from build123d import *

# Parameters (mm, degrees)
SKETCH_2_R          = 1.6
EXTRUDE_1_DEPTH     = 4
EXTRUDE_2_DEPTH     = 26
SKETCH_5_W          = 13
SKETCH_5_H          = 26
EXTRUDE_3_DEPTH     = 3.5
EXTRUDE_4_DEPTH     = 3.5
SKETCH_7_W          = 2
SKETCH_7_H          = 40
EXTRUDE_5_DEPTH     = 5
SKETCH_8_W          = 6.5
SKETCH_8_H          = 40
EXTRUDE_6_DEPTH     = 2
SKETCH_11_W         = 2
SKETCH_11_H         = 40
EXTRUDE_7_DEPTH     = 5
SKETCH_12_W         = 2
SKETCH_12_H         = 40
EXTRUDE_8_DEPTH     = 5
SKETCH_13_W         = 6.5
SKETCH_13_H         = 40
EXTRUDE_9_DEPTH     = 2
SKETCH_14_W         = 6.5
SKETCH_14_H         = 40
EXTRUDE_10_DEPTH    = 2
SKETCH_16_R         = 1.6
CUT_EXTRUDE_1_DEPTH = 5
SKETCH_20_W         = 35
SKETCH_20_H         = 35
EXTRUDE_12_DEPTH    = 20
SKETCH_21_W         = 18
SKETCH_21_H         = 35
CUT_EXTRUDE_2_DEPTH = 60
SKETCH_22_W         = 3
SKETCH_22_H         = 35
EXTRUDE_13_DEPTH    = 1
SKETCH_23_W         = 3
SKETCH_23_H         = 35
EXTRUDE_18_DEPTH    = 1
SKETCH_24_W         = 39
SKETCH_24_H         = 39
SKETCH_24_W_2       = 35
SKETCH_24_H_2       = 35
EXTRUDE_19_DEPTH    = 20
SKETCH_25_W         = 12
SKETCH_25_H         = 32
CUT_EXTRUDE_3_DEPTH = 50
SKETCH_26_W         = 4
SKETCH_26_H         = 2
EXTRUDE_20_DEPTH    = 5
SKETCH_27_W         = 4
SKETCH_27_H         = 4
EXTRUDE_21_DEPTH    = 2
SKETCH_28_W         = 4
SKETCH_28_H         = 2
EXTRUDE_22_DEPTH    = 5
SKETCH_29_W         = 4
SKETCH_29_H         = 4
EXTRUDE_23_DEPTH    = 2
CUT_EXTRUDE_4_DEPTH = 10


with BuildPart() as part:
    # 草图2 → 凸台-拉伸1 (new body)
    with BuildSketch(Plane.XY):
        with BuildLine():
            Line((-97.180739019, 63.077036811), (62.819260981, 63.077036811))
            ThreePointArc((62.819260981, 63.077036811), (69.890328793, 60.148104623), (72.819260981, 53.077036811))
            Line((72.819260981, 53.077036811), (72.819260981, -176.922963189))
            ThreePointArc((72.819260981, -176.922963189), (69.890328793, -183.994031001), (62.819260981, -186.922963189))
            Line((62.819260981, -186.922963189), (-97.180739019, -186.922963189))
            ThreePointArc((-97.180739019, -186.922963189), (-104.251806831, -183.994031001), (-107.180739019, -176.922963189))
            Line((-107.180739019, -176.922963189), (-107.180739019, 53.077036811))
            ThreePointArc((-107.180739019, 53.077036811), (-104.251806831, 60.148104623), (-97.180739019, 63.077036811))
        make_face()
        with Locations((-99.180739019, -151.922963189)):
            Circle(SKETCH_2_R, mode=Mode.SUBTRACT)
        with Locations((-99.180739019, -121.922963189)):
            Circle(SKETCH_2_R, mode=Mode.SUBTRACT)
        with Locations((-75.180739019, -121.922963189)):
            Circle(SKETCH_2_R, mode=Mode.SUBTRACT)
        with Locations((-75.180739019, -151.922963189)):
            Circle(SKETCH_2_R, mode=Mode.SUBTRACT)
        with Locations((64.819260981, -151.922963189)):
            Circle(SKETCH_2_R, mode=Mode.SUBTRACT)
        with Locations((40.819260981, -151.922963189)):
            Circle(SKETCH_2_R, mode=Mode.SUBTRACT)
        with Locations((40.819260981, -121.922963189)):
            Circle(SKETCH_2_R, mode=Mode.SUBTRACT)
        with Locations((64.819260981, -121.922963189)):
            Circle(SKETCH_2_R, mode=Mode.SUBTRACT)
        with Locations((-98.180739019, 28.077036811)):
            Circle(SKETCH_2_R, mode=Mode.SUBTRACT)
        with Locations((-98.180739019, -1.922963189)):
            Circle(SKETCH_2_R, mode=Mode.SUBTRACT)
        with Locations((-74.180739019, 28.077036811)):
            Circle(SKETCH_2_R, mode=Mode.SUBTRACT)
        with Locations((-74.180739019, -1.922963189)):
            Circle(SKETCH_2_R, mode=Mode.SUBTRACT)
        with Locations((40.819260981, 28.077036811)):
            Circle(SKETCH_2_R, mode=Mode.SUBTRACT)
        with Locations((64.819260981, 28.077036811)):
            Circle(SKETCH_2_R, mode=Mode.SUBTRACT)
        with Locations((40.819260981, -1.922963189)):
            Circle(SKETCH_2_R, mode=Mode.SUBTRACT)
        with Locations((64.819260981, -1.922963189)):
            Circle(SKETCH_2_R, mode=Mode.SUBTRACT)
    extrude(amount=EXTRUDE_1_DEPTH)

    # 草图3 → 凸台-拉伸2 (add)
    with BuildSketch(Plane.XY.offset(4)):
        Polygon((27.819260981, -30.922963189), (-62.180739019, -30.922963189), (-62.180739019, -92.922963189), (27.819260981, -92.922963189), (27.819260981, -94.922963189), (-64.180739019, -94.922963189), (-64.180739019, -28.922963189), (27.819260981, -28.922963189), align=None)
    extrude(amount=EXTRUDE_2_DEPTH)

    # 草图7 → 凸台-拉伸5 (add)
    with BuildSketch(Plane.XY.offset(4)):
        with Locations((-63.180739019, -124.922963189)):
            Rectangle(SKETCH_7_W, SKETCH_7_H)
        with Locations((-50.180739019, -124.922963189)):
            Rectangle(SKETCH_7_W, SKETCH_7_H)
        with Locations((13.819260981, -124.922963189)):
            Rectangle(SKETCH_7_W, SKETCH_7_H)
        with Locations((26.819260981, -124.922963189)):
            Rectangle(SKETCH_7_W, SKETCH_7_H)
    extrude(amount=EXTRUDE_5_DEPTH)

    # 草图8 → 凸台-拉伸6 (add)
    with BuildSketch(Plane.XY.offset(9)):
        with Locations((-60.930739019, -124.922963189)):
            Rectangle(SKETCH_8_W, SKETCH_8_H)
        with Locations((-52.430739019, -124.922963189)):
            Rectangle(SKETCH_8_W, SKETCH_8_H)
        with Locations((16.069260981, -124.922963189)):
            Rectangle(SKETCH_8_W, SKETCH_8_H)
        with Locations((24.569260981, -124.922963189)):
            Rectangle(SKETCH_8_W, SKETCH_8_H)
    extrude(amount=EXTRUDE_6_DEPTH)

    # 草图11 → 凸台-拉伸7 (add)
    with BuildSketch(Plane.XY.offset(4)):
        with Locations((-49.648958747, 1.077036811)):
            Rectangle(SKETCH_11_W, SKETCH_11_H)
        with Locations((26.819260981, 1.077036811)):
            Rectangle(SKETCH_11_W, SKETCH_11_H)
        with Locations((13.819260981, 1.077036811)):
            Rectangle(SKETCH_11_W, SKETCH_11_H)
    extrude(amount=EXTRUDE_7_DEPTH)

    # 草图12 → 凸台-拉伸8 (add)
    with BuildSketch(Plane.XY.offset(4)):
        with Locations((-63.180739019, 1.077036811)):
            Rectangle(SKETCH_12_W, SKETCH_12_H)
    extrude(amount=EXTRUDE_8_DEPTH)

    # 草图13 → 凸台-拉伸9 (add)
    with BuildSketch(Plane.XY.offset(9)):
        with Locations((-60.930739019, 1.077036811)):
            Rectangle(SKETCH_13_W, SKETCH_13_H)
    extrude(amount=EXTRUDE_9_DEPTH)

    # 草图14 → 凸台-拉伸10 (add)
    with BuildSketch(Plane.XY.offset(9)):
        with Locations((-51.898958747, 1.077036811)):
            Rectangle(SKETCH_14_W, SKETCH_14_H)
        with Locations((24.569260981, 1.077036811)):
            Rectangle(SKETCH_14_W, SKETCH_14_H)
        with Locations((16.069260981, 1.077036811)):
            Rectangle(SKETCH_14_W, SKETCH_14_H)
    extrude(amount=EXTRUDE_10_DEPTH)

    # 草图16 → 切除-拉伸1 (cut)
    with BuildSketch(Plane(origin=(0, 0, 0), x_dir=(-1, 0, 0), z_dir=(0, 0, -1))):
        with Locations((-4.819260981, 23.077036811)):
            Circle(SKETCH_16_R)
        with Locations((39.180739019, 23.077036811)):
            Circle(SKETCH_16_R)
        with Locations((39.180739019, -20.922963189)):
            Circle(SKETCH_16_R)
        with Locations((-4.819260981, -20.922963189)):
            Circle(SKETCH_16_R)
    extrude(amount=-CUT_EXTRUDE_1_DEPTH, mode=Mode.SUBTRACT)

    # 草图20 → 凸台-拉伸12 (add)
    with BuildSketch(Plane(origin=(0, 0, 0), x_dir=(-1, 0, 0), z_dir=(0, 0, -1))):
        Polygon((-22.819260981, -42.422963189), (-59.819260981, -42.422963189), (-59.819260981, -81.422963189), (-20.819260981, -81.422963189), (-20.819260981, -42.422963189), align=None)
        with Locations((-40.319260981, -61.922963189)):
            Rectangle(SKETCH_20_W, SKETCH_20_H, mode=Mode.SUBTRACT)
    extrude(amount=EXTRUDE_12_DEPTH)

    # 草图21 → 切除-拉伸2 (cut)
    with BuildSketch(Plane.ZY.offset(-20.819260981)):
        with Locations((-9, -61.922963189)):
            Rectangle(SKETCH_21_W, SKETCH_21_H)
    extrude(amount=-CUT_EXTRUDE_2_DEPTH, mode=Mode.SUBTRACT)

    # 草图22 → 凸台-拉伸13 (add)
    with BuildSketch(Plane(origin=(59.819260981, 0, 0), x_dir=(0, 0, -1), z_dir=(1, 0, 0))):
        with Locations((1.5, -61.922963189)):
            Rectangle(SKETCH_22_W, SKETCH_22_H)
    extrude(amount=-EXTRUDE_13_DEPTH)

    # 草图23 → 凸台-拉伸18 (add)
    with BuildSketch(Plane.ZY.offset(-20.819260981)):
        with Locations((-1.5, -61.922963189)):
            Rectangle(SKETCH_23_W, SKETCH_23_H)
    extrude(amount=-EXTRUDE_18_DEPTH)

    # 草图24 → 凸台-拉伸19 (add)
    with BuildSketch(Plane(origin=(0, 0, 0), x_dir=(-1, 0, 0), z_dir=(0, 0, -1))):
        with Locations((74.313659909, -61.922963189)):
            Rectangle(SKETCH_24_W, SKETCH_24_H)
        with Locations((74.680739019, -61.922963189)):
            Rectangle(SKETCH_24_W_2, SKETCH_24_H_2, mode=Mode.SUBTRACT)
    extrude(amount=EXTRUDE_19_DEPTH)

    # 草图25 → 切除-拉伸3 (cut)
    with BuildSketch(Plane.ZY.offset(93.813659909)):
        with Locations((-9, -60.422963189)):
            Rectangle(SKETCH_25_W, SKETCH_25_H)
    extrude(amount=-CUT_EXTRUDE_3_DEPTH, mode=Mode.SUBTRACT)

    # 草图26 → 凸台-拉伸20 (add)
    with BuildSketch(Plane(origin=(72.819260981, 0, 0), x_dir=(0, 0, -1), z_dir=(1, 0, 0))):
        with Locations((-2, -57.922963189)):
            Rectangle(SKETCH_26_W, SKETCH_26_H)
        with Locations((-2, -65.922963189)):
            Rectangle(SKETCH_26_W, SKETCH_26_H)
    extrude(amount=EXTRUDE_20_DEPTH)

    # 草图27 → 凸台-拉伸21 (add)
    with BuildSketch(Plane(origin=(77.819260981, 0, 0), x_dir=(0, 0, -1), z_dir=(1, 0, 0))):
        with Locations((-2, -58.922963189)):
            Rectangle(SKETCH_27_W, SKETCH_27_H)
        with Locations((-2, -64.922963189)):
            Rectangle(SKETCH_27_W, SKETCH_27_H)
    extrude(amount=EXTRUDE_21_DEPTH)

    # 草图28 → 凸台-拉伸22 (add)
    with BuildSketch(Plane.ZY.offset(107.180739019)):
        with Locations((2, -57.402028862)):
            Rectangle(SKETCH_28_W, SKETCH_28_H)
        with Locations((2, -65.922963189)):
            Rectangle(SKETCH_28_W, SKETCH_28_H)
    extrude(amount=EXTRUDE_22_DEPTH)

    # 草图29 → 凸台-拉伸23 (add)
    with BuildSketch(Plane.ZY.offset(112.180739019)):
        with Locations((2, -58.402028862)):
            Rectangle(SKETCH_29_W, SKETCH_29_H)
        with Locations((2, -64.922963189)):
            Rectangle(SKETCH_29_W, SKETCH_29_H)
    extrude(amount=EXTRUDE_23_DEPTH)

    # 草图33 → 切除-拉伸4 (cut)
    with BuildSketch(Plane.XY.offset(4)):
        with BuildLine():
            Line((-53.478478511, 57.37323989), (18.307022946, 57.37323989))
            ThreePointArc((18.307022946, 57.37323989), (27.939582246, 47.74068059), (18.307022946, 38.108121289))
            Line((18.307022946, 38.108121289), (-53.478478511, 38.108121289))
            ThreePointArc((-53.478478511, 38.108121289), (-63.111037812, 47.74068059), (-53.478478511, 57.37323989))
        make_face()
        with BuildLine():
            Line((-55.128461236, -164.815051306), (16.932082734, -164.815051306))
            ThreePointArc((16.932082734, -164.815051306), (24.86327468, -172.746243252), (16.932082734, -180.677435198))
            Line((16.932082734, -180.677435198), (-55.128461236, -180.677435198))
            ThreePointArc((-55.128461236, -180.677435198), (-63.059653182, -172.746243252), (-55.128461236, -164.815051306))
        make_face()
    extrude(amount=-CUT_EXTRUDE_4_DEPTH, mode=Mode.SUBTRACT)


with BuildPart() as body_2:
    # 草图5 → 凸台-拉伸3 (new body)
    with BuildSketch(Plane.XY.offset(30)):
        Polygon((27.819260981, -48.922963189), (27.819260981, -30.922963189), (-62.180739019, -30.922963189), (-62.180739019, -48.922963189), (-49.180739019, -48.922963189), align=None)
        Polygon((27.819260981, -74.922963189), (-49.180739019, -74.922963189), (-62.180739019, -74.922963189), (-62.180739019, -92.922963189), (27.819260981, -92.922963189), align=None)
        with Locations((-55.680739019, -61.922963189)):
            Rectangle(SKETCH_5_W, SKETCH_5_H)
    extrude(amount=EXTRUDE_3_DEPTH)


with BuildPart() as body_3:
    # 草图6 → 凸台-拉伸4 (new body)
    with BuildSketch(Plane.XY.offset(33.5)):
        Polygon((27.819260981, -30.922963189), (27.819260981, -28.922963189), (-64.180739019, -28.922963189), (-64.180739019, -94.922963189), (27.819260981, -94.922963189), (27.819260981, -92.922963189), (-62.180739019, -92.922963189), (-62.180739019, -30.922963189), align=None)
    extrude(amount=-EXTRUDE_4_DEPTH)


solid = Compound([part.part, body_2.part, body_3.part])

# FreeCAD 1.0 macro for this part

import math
import FreeCAD as App
import Part
import Sketcher


def add_polygon(sketch, points):
    """Adds a closed chain of lines whose ends are joined by coincident constraints."""
    first, n = sketch.GeometryCount, len(points)
    for a, b in zip(points, points[1:] + points[:1]):
        sketch.addGeometry(Part.LineSegment(App.Vector(*a, 0), App.Vector(*b, 0)), False)
    for i in range(n):
        sketch.addConstraint(Sketcher.Constraint("Coincident", first + i, 2, first + (i + 1) % n, 1))

doc = App.newDocument("Part")
body = doc.addObject("PartDesign::Body", "Body")

sketch1 = body.newObject("Sketcher::SketchObject", "Sketch")
sketch1.AttachmentSupport = (doc.getObject("XY_Plane"), [""])
sketch1.MapMode = "FlatFace"
sketch1.addGeometry(Part.LineSegment(App.Vector(62.819261, 63.077037, 0), App.Vector(-97.180739, 63.077037, 0)), False)
sketch1.addGeometry(Part.ArcOfCircle(Part.Circle(App.Vector(-97.180739, 53.077037, 0), App.Vector(0, 0, 1), 10), math.radians(90), math.radians(180)), False)
sketch1.addGeometry(Part.LineSegment(App.Vector(-107.180739, 53.077037, 0), App.Vector(-107.180739, -176.922963, 0)), False)
sketch1.addGeometry(Part.ArcOfCircle(Part.Circle(App.Vector(-97.180739, -176.922963, 0), App.Vector(0, 0, 1), 10), math.radians(180), math.radians(270)), False)
sketch1.addGeometry(Part.LineSegment(App.Vector(-97.180739, -186.922963, 0), App.Vector(62.819261, -186.922963, 0)), False)
sketch1.addGeometry(Part.ArcOfCircle(Part.Circle(App.Vector(62.819261, -176.922963, 0), App.Vector(0, 0, 1), 10), math.radians(-90), math.radians(0)), False)
sketch1.addGeometry(Part.LineSegment(App.Vector(72.819261, -176.922963, 0), App.Vector(72.819261, 53.077037, 0)), False)
sketch1.addGeometry(Part.ArcOfCircle(Part.Circle(App.Vector(62.819261, 53.077037, 0), App.Vector(0, 0, 1), 10), math.radians(0), math.radians(90)), False)
sketch1.addGeometry(Part.Circle(App.Vector(64.819261, -151.922963, 0), App.Vector(0, 0, 1), 1.6), False)
sketch1.addGeometry(Part.Circle(App.Vector(40.819261, -151.922963, 0), App.Vector(0, 0, 1), 1.6), False)
sketch1.addGeometry(Part.Circle(App.Vector(64.819261, -121.922963, 0), App.Vector(0, 0, 1), 1.6), False)
sketch1.addGeometry(Part.Circle(App.Vector(40.819261, -121.922963, 0), App.Vector(0, 0, 1), 1.6), False)
sketch1.addGeometry(Part.Circle(App.Vector(-75.180739, -151.922963, 0), App.Vector(0, 0, 1), 1.6), False)
sketch1.addGeometry(Part.Circle(App.Vector(-99.180739, -151.922963, 0), App.Vector(0, 0, 1), 1.6), False)
sketch1.addGeometry(Part.Circle(App.Vector(-75.180739, -121.922963, 0), App.Vector(0, 0, 1), 1.6), False)
sketch1.addGeometry(Part.Circle(App.Vector(-99.180739, -121.922963, 0), App.Vector(0, 0, 1), 1.6), False)
sketch1.addGeometry(Part.Circle(App.Vector(64.819261, -1.922963, 0), App.Vector(0, 0, 1), 1.6), False)
sketch1.addGeometry(Part.Circle(App.Vector(40.819261, -1.922963, 0), App.Vector(0, 0, 1), 1.6), False)
sketch1.addGeometry(Part.Circle(App.Vector(64.819261, 28.077037, 0), App.Vector(0, 0, 1), 1.6), False)
sketch1.addGeometry(Part.Circle(App.Vector(40.819261, 28.077037, 0), App.Vector(0, 0, 1), 1.6), False)
sketch1.addGeometry(Part.Circle(App.Vector(-74.180739, -1.922963, 0), App.Vector(0, 0, 1), 1.6), False)
sketch1.addGeometry(Part.Circle(App.Vector(-98.180739, -1.922963, 0), App.Vector(0, 0, 1), 1.6), False)
sketch1.addGeometry(Part.Circle(App.Vector(-74.180739, 28.077037, 0), App.Vector(0, 0, 1), 1.6), False)
sketch1.addGeometry(Part.Circle(App.Vector(-98.180739, 28.077037, 0), App.Vector(0, 0, 1), 1.6), False)
sketch1.addConstraint(Sketcher.Constraint("Tangent", 0, 2, 1, 1))
sketch1.addConstraint(Sketcher.Constraint("Tangent", 1, 2, 2, 1))
sketch1.addConstraint(Sketcher.Constraint("Tangent", 2, 2, 3, 1))
sketch1.addConstraint(Sketcher.Constraint("Tangent", 3, 2, 4, 1))
sketch1.addConstraint(Sketcher.Constraint("Tangent", 4, 2, 5, 1))
sketch1.addConstraint(Sketcher.Constraint("Tangent", 5, 2, 6, 1))
sketch1.addConstraint(Sketcher.Constraint("Tangent", 6, 2, 7, 1))
sketch1.addConstraint(Sketcher.Constraint("Tangent", 7, 2, 0, 1))
sketch1.addConstraint(Sketcher.Constraint("Horizontal", 0))
sketch1.addConstraint(Sketcher.Constraint("Vertical", 2))
sketch1.addConstraint(Sketcher.Constraint("Horizontal", 4))
sketch1.addConstraint(Sketcher.Constraint("Vertical", 6))
sketch1.addConstraint(Sketcher.Constraint("Equal", 1, 3))
sketch1.addConstraint(Sketcher.Constraint("Equal", 3, 5))
sketch1.addConstraint(Sketcher.Constraint("Equal", 5, 7))
sketch1.addConstraint(Sketcher.Constraint("Equal", 8, 9))
sketch1.addConstraint(Sketcher.Constraint("Equal", 9, 10))
sketch1.addConstraint(Sketcher.Constraint("Equal", 10, 11))
sketch1.addConstraint(Sketcher.Constraint("Equal", 11, 12))
sketch1.addConstraint(Sketcher.Constraint("Equal", 12, 13))
sketch1.addConstraint(Sketcher.Constraint("Equal", 13, 14))
sketch1.addConstraint(Sketcher.Constraint("Equal", 14, 15))
sketch1.addConstraint(Sketcher.Constraint("Equal", 15, 16))
sketch1.addConstraint(Sketcher.Constraint("Equal", 16, 17))
sketch1.addConstraint(Sketcher.Constraint("Equal", 17, 18))
sketch1.addConstraint(Sketcher.Constraint("Equal", 18, 19))
sketch1.addConstraint(Sketcher.Constraint("Equal", 19, 20))
sketch1.addConstraint(Sketcher.Constraint("Equal", 20, 21))
sketch1.addConstraint(Sketcher.Constraint("Equal", 21, 22))
sketch1.addConstraint(Sketcher.Constraint("Equal", 22, 23))
sketch1.addConstraint(Sketcher.Constraint("Horizontal", 8, 3, 9, 3))
sketch1.addConstraint(Sketcher.Constraint("Horizontal", 10, 3, 11, 3))
sketch1.addConstraint(Sketcher.Constraint("Horizontal", 9, 3, 12, 3))
sketch1.addConstraint(Sketcher.Constraint("Horizontal", 12, 3, 13, 3))
sketch1.addConstraint(Sketcher.Constraint("Horizontal", 11, 3, 14, 3))
sketch1.addConstraint(Sketcher.Constraint("Horizontal", 14, 3, 15, 3))
sketch1.addConstraint(Sketcher.Constraint("Horizontal", 16, 3, 17, 3))
sketch1.addConstraint(Sketcher.Constraint("Horizontal", 18, 3, 19, 3))
sketch1.addConstraint(Sketcher.Constraint("Horizontal", 17, 3, 20, 3))
sketch1.addConstraint(Sketcher.Constraint("Horizontal", 20, 3, 21, 3))
sketch1.addConstraint(Sketcher.Constraint("Horizontal", 19, 3, 22, 3))
sketch1.addConstraint(Sketcher.Constraint("Horizontal", 22, 3, 23, 3))
sketch1.addConstraint(Sketcher.Constraint("Vertical", 8, 3, 10, 3))
sketch1.addConstraint(Sketcher.Constraint("Vertical", 9, 3, 11, 3))
sketch1.addConstraint(Sketcher.Constraint("Vertical", 12, 3, 14, 3))
sketch1.addConstraint(Sketcher.Constraint("Vertical", 13, 3, 15, 3))
sketch1.addConstraint(Sketcher.Constraint("Vertical", 10, 3, 16, 3))
sketch1.addConstraint(Sketcher.Constraint("Vertical", 11, 3, 17, 3))
sketch1.addConstraint(Sketcher.Constraint("Vertical", 16, 3, 18, 3))
sketch1.addConstraint(Sketcher.Constraint("Vertical", 17, 3, 19, 3))
sketch1.addConstraint(Sketcher.Constraint("Vertical", 20, 3, 22, 3))
sketch1.addConstraint(Sketcher.Constraint("Vertical", 21, 3, 23, 3))
sketch1.addConstraint(Sketcher.Constraint("Radius", 1, 10.0))
sketch1.addConstraint(Sketcher.Constraint("Diameter", 8, 3.2))
sketch1.addConstraint(Sketcher.Constraint("DistanceX", 0, 2, 0, 1, 160.0))
sketch1.addConstraint(Sketcher.Constraint("DistanceY", 2, 2, 2, 1, 230.0))
sketch1.addConstraint(Sketcher.Constraint("DistanceX", 5, 3, 8, 3, 2.0))
sketch1.addConstraint(Sketcher.Constraint("DistanceY", 5, 3, 8, 3, 25.0))
sketch1.addConstraint(Sketcher.Constraint("DistanceX", 9, 3, 8, 3, 24.0))
sketch1.addConstraint(Sketcher.Constraint("DistanceY", 8, 3, 10, 3, 30.0))
sketch1.addConstraint(Sketcher.Constraint("DistanceX", 3, 3, 12, 3, 22.0))
sketch1.addConstraint(Sketcher.Constraint("DistanceX", 13, 3, 12, 3, 24.0))
sketch1.addConstraint(Sketcher.Constraint("DistanceY", 16, 3, 7, 3, 55.0))
sketch1.addConstraint(Sketcher.Constraint("DistanceY", 18, 3, 7, 3, 25.0))
sketch1.addConstraint(Sketcher.Constraint("DistanceX", 1, 3, 20, 3, 23.0))
sketch1.addConstraint(Sketcher.Constraint("DistanceX", 21, 3, 20, 3, 24.0))
sketch1.addConstraint(Sketcher.Constraint("DistanceX", 1, 3, -1, 1, 97.180739))
sketch1.addConstraint(Sketcher.Constraint("DistanceY", -1, 1, 1, 3, 53.077037))
pad1 = body.newObject("PartDesign::Pad", "Pad")
pad1.Profile = sketch1
pad1.Length = 4

sketch2 = body.newObject("Sketcher::SketchObject", "Sketch001")
sketch2.AttachmentSupport = (doc.getObject("XY_Plane"), [""])
sketch2.MapMode = "FlatFace"
sketch2.AttachmentOffset = App.Placement(App.Vector(0, 0, 4), App.Rotation())
add_polygon(sketch2, [(-62.180739, -30.922963), (27.819261, -30.922963), (27.819261, -28.922963), (-64.180739, -28.922963), (-64.180739, -94.922963), (27.819261, -94.922963), (27.819261, -92.922963), (-62.180739, -92.922963)])
sketch2.addConstraint(Sketcher.Constraint("Horizontal", 0))
sketch2.addConstraint(Sketcher.Constraint("Vertical", 1))
sketch2.addConstraint(Sketcher.Constraint("Horizontal", 2))
sketch2.addConstraint(Sketcher.Constraint("Vertical", 3))
sketch2.addConstraint(Sketcher.Constraint("Horizontal", 4))
sketch2.addConstraint(Sketcher.Constraint("Vertical", 5))
sketch2.addConstraint(Sketcher.Constraint("Horizontal", 6))
sketch2.addConstraint(Sketcher.Constraint("Vertical", 7))
sketch2.addConstraint(Sketcher.Constraint("Vertical", 1, 2, 4, 2))
sketch2.addConstraint(Sketcher.Constraint("Equal", 1, 5))
sketch2.addConstraint(Sketcher.Constraint("DistanceX", 0, 1, 0, 2, 90.0))
sketch2.addConstraint(Sketcher.Constraint("DistanceX", 2, 2, 2, 1, 92.0))
sketch2.addConstraint(Sketcher.Constraint("DistanceY", 1, 1, 1, 2, 2.0))
sketch2.addConstraint(Sketcher.Constraint("DistanceY", 3, 2, 3, 1, 66.0))
sketch2.addConstraint(Sketcher.Constraint("DistanceX", -1, 1, 0, 2, 27.819261))
sketch2.addConstraint(Sketcher.Constraint("DistanceY", 0, 2, -1, 1, 30.922963))
pad2 = body.newObject("PartDesign::Pad", "Pad001")
pad2.Profile = sketch2
pad2.Length = 26

sketch3 = body.newObject("Sketcher::SketchObject", "Sketch002")
sketch3.AttachmentSupport = (doc.getObject("XY_Plane"), [""])
sketch3.MapMode = "FlatFace"
sketch3.AttachmentOffset = App.Placement(App.Vector(0, 0, 4), App.Rotation())
add_polygon(sketch3, [(-64.180739, -104.922963), (-64.180739, -144.922963), (-62.180739, -144.922963), (-62.180739, -104.922963)])
add_polygon(sketch3, [(-51.180739, -104.922963), (-51.180739, -144.922963), (-49.180739, -144.922963), (-49.180739, -104.922963)])
add_polygon(sketch3, [(12.819261, -104.922963), (12.819261, -144.922963), (14.819261, -144.922963), (14.819261, -104.922963)])
add_polygon(sketch3, [(25.819261, -104.922963), (25.819261, -144.922963), (27.819261, -144.922963), (27.819261, -104.922963)])
sketch3.addConstraint(Sketcher.Constraint("Vertical", 0))
sketch3.addConstraint(Sketcher.Constraint("Horizontal", 1))
sketch3.addConstraint(Sketcher.Constraint("Vertical", 2))
sketch3.addConstraint(Sketcher.Constraint("Horizontal", 3))
sketch3.addConstraint(Sketcher.Constraint("Vertical", 4))
sketch3.addConstraint(Sketcher.Constraint("Horizontal", 5))
sketch3.addConstraint(Sketcher.Constraint("Vertical", 6))
sketch3.addConstraint(Sketcher.Constraint("Horizontal", 7))
sketch3.addConstraint(Sketcher.Constraint("Vertical", 8))
sketch3.addConstraint(Sketcher.Constraint("Horizontal", 9))
sketch3.addConstraint(Sketcher.Constraint("Vertical", 10))
sketch3.addConstraint(Sketcher.Constraint("Horizontal", 11))
sketch3.addConstraint(Sketcher.Constraint("Vertical", 12))
sketch3.addConstraint(Sketcher.Constraint("Horizontal", 13))
sketch3.addConstraint(Sketcher.Constraint("Vertical", 14))
sketch3.addConstraint(Sketcher.Constraint("Horizontal", 15))
sketch3.addConstraint(Sketcher.Constraint("Horizontal", 1, 2, 4, 2))
sketch3.addConstraint(Sketcher.Constraint("Horizontal", 3, 2, 6, 2))
sketch3.addConstraint(Sketcher.Constraint("Horizontal", 5, 2, 8, 2))
sketch3.addConstraint(Sketcher.Constraint("Horizontal", 7, 2, 10, 2))
sketch3.addConstraint(Sketcher.Constraint("Horizontal", 9, 2, 12, 2))
sketch3.addConstraint(Sketcher.Constraint("Horizontal", 11, 2, 14, 2))
sketch3.addConstraint(Sketcher.Constraint("Equal", 3, 5))
sketch3.addConstraint(Sketcher.Constraint("Equal", 7, 9))
sketch3.addConstraint(Sketcher.Constraint("Equal", 11, 13))
sketch3.addConstraint(Sketcher.Constraint("DistanceX", 1, 1, 1, 2, 2.0))
sketch3.addConstraint(Sketcher.Constraint("DistanceY", 0, 2, 0, 1, 40.0))
sketch3.addConstraint(Sketcher.Constraint("DistanceX", 1, 2, 4, 2, 11.0))
sketch3.addConstraint(Sketcher.Constraint("DistanceX", 5, 2, 8, 2, 62.0))
sketch3.addConstraint(Sketcher.Constraint("DistanceX", 9, 2, 12, 2, 11.0))
sketch3.addConstraint(Sketcher.Constraint("DistanceX", 0, 2, -1, 1, 64.180739))
sketch3.addConstraint(Sketcher.Constraint("DistanceY", 0, 2, -1, 1, 144.922963))
pad3 = body.newObject("PartDesign::Pad", "Pad002")
pad3.Profile = sketch3
pad3.Length = 5

sketch4 = body.newObject("Sketcher::SketchObject", "Sketch003")
sketch4.AttachmentSupport = (doc.getObject("XY_Plane"), [""])
sketch4.MapMode = "FlatFace"
sketch4.AttachmentOffset = App.Placement(App.Vector(0, 0, 9), App.Rotation())
add_polygon(sketch4, [(-64.180739, -104.922963), (-64.180739, -144.922963), (-57.680739, -144.922963), (-57.680739, -104.922963)])
add_polygon(sketch4, [(-55.680739, -104.922963), (-55.680739, -144.922963), (-49.180739, -144.922963), (-49.180739, -104.922963)])
add_polygon(sketch4, [(12.819261, -104.922963), (12.819261, -144.922963), (19.319261, -144.922963), (19.319261, -104.922963)])
add_polygon(sketch4, [(21.319261, -104.922963), (21.319261, -144.922963), (27.819261, -144.922963), (27.819261, -104.922963)])
sketch4.addConstraint(Sketcher.Constraint("Vertical", 0))
sketch4.addConstraint(Sketcher.Constraint("Horizontal", 1))
sketch4.addConstraint(Sketcher.Constraint("Vertical", 2))
sketch4.addConstraint(Sketcher.Constraint("Horizontal", 3))
sketch4.addConstraint(Sketcher.Constraint("Vertical", 4))
sketch4.addConstraint(Sketcher.Constraint("Horizontal", 5))
sketch4.addConstraint(Sketcher.Constraint("Vertical", 6))
sketch4.addConstraint(Sketcher.Constraint("Horizontal", 7))
sketch4.addConstraint(Sketcher.Constraint("Vertical", 8))
sketch4.addConstraint(Sketcher.Constraint("Horizontal", 9))
sketch4.addConstraint(Sketcher.Constraint("Vertical", 10))
sketch4.addConstraint(Sketcher.Constraint("Horizontal", 11))
sketch4.addConstraint(Sketcher.Constraint("Vertical", 12))
sketch4.addConstraint(Sketcher.Constraint("Horizontal", 13))
sketch4.addConstraint(Sketcher.Constraint("Vertical", 14))
sketch4.addConstraint(Sketcher.Constraint("Horizontal", 15))
sketch4.addConstraint(Sketcher.Constraint("Horizontal", 1, 2, 4, 2))
sketch4.addConstraint(Sketcher.Constraint("Horizontal", 3, 2, 6, 2))
sketch4.addConstraint(Sketcher.Constraint("Horizontal", 5, 2, 8, 2))
sketch4.addConstraint(Sketcher.Constraint("Horizontal", 7, 2, 10, 2))
sketch4.addConstraint(Sketcher.Constraint("Horizontal", 9, 2, 12, 2))
sketch4.addConstraint(Sketcher.Constraint("Horizontal", 11, 2, 14, 2))
sketch4.addConstraint(Sketcher.Constraint("Equal", 3, 5))
sketch4.addConstraint(Sketcher.Constraint("Equal", 7, 9))
sketch4.addConstraint(Sketcher.Constraint("Equal", 11, 13))
sketch4.addConstraint(Sketcher.Constraint("DistanceY", 0, 2, 0, 1, 40.0))
sketch4.addConstraint(Sketcher.Constraint("DistanceX", 1, 1, 1, 2, 6.5))
sketch4.addConstraint(Sketcher.Constraint("DistanceX", 1, 2, 4, 2, 2.0))
sketch4.addConstraint(Sketcher.Constraint("DistanceX", 5, 2, 8, 2, 62.0))
sketch4.addConstraint(Sketcher.Constraint("DistanceX", 9, 2, 12, 2, 2.0))
sketch4.addConstraint(Sketcher.Constraint("DistanceX", 0, 2, -1, 1, 64.180739))
sketch4.addConstraint(Sketcher.Constraint("DistanceY", 0, 2, -1, 1, 144.922963))
pad4 = body.newObject("PartDesign::Pad", "Pad003")
pad4.Profile = sketch4
pad4.Length = 2

sketch5 = body.newObject("Sketcher::SketchObject", "Sketch004")
sketch5.AttachmentSupport = (doc.getObject("XY_Plane"), [""])
sketch5.MapMode = "FlatFace"
sketch5.AttachmentOffset = App.Placement(App.Vector(0, 0, 4), App.Rotation())
add_polygon(sketch5, [(-50.648959, 21.077037), (-50.648959, -18.922963), (-48.648959, -18.922963), (-48.648959, 21.077037)])
add_polygon(sketch5, [(25.819261, 21.077037), (25.819261, -18.922963), (27.819261, -18.922963), (27.819261, 21.077037)])
add_polygon(sketch5, [(12.819261, 21.077037), (12.819261, -18.922963), (14.819261, -18.922963), (14.819261, 21.077037)])
sketch5.addConstraint(Sketcher.Constraint("Vertical", 0))
sketch5.addConstraint(Sketcher.Constraint("Horizontal", 1))
sketch5.addConstraint(Sketcher.Constraint("Vertical", 2))
sketch5.addConstraint(Sketcher.Constraint("Horizontal", 3))
sketch5.addConstraint(Sketcher.Constraint("Vertical", 4))
sketch5.addConstraint(Sketcher.Constraint("Horizontal", 5))
sketch5.addConstraint(Sketcher.Constraint("Vertical", 6))
sketch5.addConstraint(Sketcher.Constraint("Horizontal", 7))
sketch5.addConstraint(Sketcher.Constraint("Vertical", 8))
sketch5.addConstraint(Sketcher.Constraint("Horizontal", 9))
sketch5.addConstraint(Sketcher.Constraint("Vertical", 10))
sketch5.addConstraint(Sketcher.Constraint("Horizontal", 11))
sketch5.addConstraint(Sketcher.Constraint("Horizontal", 1, 2, 4, 2))
sketch5.addConstraint(Sketcher.Constraint("Horizontal", 3, 2, 6, 2))
sketch5.addConstraint(Sketcher.Constraint("Horizontal", 5, 2, 8, 2))
sketch5.addConstraint(Sketcher.Constraint("Horizontal", 7, 2, 10, 2))
sketch5.addConstraint(Sketcher.Constraint("Equal", 3, 5))
sketch5.addConstraint(Sketcher.Constraint("Equal", 7, 9))
sketch5.addConstraint(Sketcher.Constraint("DistanceX", 1, 1, 1, 2, 2.0))
sketch5.addConstraint(Sketcher.Constraint("DistanceY", 0, 2, 0, 1, 40.0))
sketch5.addConstraint(Sketcher.Constraint("DistanceX", 8, 2, 4, 2, 13.0))
sketch5.addConstraint(Sketcher.Constraint("DistanceX", 0, 2, -1, 1, 50.648959))
sketch5.addConstraint(Sketcher.Constraint("DistanceX", -1, 1, 4, 2, 25.819261))
sketch5.addConstraint(Sketcher.Constraint("DistanceY", 0, 2, -1, 1, 18.922963))
pad5 = body.newObject("PartDesign::Pad", "Pad004")
pad5.Profile = sketch5
pad5.Length = 5

sketch6 = body.newObject("Sketcher::SketchObject", "Sketch005")
sketch6.AttachmentSupport = (doc.getObject("XY_Plane"), [""])
sketch6.MapMode = "FlatFace"
sketch6.AttachmentOffset = App.Placement(App.Vector(0, 0, 4), App.Rotation())
add_polygon(sketch6, [(-64.180739, 21.077037), (-64.180739, -18.922963), (-62.180739, -18.922963), (-62.180739, 21.077037)])
sketch6.addConstraint(Sketcher.Constraint("Vertical", 0))
sketch6.addConstraint(Sketcher.Constraint("Horizontal", 1))
sketch6.addConstraint(Sketcher.Constraint("Vertical", 2))
sketch6.addConstraint(Sketcher.Constraint("Horizontal", 3))
sketch6.addConstraint(Sketcher.Constraint("DistanceX", 1, 1, 1, 2, 2.0))
sketch6.addConstraint(Sketcher.Constraint("DistanceY", 0, 2, 0, 1, 40.0))
sketch6.addConstraint(Sketcher.Constraint("DistanceX", 0, 2, -1, 1, 64.180739))
sketch6.addConstraint(Sketcher.Constraint("DistanceY", 0, 2, -1, 1, 18.922963))
pad6 = body.newObject("PartDesign::Pad", "Pad005")
pad6.Profile = sketch6
pad6.Length = 5

sketch7 = body.newObject("Sketcher::SketchObject", "Sketch006")
sketch7.AttachmentSupport = (doc.getObject("XY_Plane"), [""])
sketch7.MapMode = "FlatFace"
sketch7.AttachmentOffset = App.Placement(App.Vector(0, 0, 9), App.Rotation())
add_polygon(sketch7, [(-64.180739, 21.077037), (-64.180739, -18.922963), (-57.680739, -18.922963), (-57.680739, 21.077037)])
sketch7.addConstraint(Sketcher.Constraint("Vertical", 0))
sketch7.addConstraint(Sketcher.Constraint("Horizontal", 1))
sketch7.addConstraint(Sketcher.Constraint("Vertical", 2))
sketch7.addConstraint(Sketcher.Constraint("Horizontal", 3))
sketch7.addConstraint(Sketcher.Constraint("DistanceY", 0, 2, 0, 1, 40.0))
sketch7.addConstraint(Sketcher.Constraint("DistanceX", 1, 1, 1, 2, 6.5))
sketch7.addConstraint(Sketcher.Constraint("DistanceX", 0, 2, -1, 1, 64.180739))
sketch7.addConstraint(Sketcher.Constraint("DistanceY", 0, 2, -1, 1, 18.922963))
pad7 = body.newObject("PartDesign::Pad", "Pad006")
pad7.Profile = sketch7
pad7.Length = 2

sketch8 = body.newObject("Sketcher::SketchObject", "Sketch007")
sketch8.AttachmentSupport = (doc.getObject("XY_Plane"), [""])
sketch8.MapMode = "FlatFace"
sketch8.AttachmentOffset = App.Placement(App.Vector(0, 0, 9), App.Rotation())
add_polygon(sketch8, [(-55.148959, 21.077037), (-55.148959, -18.922963), (-48.648959, -18.922963), (-48.648959, 21.077037)])
add_polygon(sketch8, [(21.319261, 21.077037), (21.319261, -18.922963), (27.819261, -18.922963), (27.819261, 21.077037)])
add_polygon(sketch8, [(12.819261, 21.077037), (12.819261, -18.922963), (19.319261, -18.922963), (19.319261, 21.077037)])
sketch8.addConstraint(Sketcher.Constraint("Vertical", 0))
sketch8.addConstraint(Sketcher.Constraint("Horizontal", 1))
sketch8.addConstraint(Sketcher.Constraint("Vertical", 2))
sketch8.addConstraint(Sketcher.Constraint("Horizontal", 3))
sketch8.addConstraint(Sketcher.Constraint("Vertical", 4))
sketch8.addConstraint(Sketcher.Constraint("Horizontal", 5))
sketch8.addConstraint(Sketcher.Constraint("Vertical", 6))
sketch8.addConstraint(Sketcher.Constraint("Horizontal", 7))
sketch8.addConstraint(Sketcher.Constraint("Vertical", 8))
sketch8.addConstraint(Sketcher.Constraint("Horizontal", 9))
sketch8.addConstraint(Sketcher.Constraint("Vertical", 10))
sketch8.addConstraint(Sketcher.Constraint("Horizontal", 11))
sketch8.addConstraint(Sketcher.Constraint("Horizontal", 1, 2, 4, 2))
sketch8.addConstraint(Sketcher.Constraint("Horizontal", 3, 2, 6, 2))
sketch8.addConstraint(Sketcher.Constraint("Horizontal", 5, 2, 8, 2))
sketch8.addConstraint(Sketcher.Constraint("Horizontal", 7, 2, 10, 2))
sketch8.addConstraint(Sketcher.Constraint("Equal", 3, 5))
sketch8.addConstraint(Sketcher.Constraint("Equal", 7, 9))
sketch8.addConstraint(Sketcher.Constraint("DistanceY", 0, 2, 0, 1, 40.0))
sketch8.addConstraint(Sketcher.Constraint("DistanceX", 1, 1, 1, 2, 6.5))
sketch8.addConstraint(Sketcher.Constraint("DistanceX", 8, 2, 5, 2, 15.0))
sketch8.addConstraint(Sketcher.Constraint("DistanceX", 0, 2, -1, 1, 55.148959))
sketch8.addConstraint(Sketcher.Constraint("DistanceX", -1, 1, 4, 2, 21.319261))
sketch8.addConstraint(Sketcher.Constraint("DistanceY", 0, 2, -1, 1, 18.922963))
pad8 = body.newObject("PartDesign::Pad", "Pad007")
pad8.Profile = sketch8
pad8.Length = 2

sketch9 = body.newObject("Sketcher::SketchObject", "Sketch008")
sketch9.AttachmentSupport = (doc.getObject("XY_Plane"), [""])
sketch9.MapMode = "FlatFace"
sketch9.addGeometry(Part.Circle(App.Vector(4.819261, 23.077037, 0), App.Vector(0, 0, 1), 1.6), False)
sketch9.addGeometry(Part.Circle(App.Vector(-39.180739, 23.077037, 0), App.Vector(0, 0, 1), 1.6), False)
sketch9.addGeometry(Part.Circle(App.Vector(-39.180739, -20.922963, 0), App.Vector(0, 0, 1), 1.6), False)
sketch9.addGeometry(Part.Circle(App.Vector(4.819261, -20.922963, 0), App.Vector(0, 0, 1), 1.6), False)
sketch9.addConstraint(Sketcher.Constraint("Equal", 0, 1))
sketch9.addConstraint(Sketcher.Constraint("Equal", 1, 2))
sketch9.addConstraint(Sketcher.Constraint("Equal", 2, 3))
sketch9.addConstraint(Sketcher.Constraint("Horizontal", 0, 3, 1, 3))
sketch9.addConstraint(Sketcher.Constraint("Horizontal", 2, 3, 3, 3))
sketch9.addConstraint(Sketcher.Constraint("Vertical", 1, 3, 2, 3))
sketch9.addConstraint(Sketcher.Constraint("Vertical", 0, 3, 3, 3))
sketch9.addConstraint(Sketcher.Constraint("Diameter", 0, 3.2))
sketch9.addConstraint(Sketcher.Constraint("DistanceX", 1, 3, 0, 3, 44.0))
sketch9.addConstraint(Sketcher.Constraint("DistanceY", 2, 3, 1, 3, 44.0))
sketch9.addConstraint(Sketcher.Constraint("DistanceX", -1, 1, 0, 3, 4.819261))
sketch9.addConstraint(Sketcher.Constraint("DistanceY", -1, 1, 0, 3, 23.077037))
pocket1 = body.newObject("PartDesign::Pocket", "Pocket")
pocket1.Profile = sketch9
pocket1.Length = 5
pocket1.Reversed = True

sketch10 = body.newObject("Sketcher::SketchObject", "Sketch009")
sketch10.AttachmentSupport = (doc.getObject("XY_Plane"), [""])
sketch10.MapMode = "FlatFace"
add_polygon(sketch10, [(59.819261, -42.422963), (59.819261, -81.422963), (20.819261, -81.422963), (20.819261, -42.422963)])
add_polygon(sketch10, [(22.819261, -79.422963), (57.819261, -79.422963), (57.819261, -44.422963), (22.819261, -44.422963)])
sketch10.addConstraint(Sketcher.Constraint("Vertical", 0))
sketch10.addConstraint(Sketcher.Constraint("Horizontal", 1))
sketch10.addConstraint(Sketcher.Constraint("Vertical", 2))
sketch10.addConstraint(Sketcher.Constraint("Horizontal", 3))
sketch10.addConstraint(Sketcher.Constraint("Horizontal", 4))
sketch10.addConstraint(Sketcher.Constraint("Vertical", 5))
sketch10.addConstraint(Sketcher.Constraint("Horizontal", 6))
sketch10.addConstraint(Sketcher.Constraint("Vertical", 7))
sketch10.addConstraint(Sketcher.Constraint("Equal", 3, 0))
sketch10.addConstraint(Sketcher.Constraint("Equal", 6, 5))
sketch10.addConstraint(Sketcher.Constraint("DistanceX", 1, 2, 1, 1, 39.0))
sketch10.addConstraint(Sketcher.Constraint("DistanceX", 4, 1, 4, 2, 35.0))
sketch10.addConstraint(Sketcher.Constraint("DistanceX", 4, 2, 0, 2, 2.0))
sketch10.addConstraint(Sketcher.Constraint("DistanceY", 0, 2, 4, 2, 2.0))
sketch10.addConstraint(Sketcher.Constraint("DistanceX", -1, 1, 0, 2, 59.819261))
sketch10.addConstraint(Sketcher.Constraint("DistanceY", 0, 2, -1, 1, 81.422963))
pad9 = body.newObject("PartDesign::Pad", "Pad008")
pad9.Profile = sketch10
pad9.Length = 20
pad9.Reversed = True

sketch11 = body.newObject("Sketcher::SketchObject", "Sketch010")
sketch11.AttachmentSupport = (doc.getObject("YZ_Plane"), [""])
sketch11.MapMode = "FlatFace"
sketch11.AttachmentOffset = App.Placement(App.Vector(0, 0, 20.819261), App.Rotation())
add_polygon(sketch11, [(-44.422963, -18), (-79.422963, -18), (-79.422963, 0), (-44.422963, 0)])
sketch11.addConstraint(Sketcher.Constraint("Horizontal", 0))
sketch11.addConstraint(Sketcher.Constraint("Vertical", 1))
sketch11.addConstraint(Sketcher.Constraint("Horizontal", 2))
sketch11.addConstraint(Sketcher.Constraint("Vertical", 3))
sketch11.addConstraint(Sketcher.Constraint("PointOnObject", 1, 2, -1))
sketch11.addConstraint(Sketcher.Constraint("DistanceX", 0, 2, 0, 1, 35.0))
sketch11.addConstraint(Sketcher.Constraint("DistanceY", 1, 1, 1, 2, 18.0))
sketch11.addConstraint(Sketcher.Constraint("DistanceX", 0, 2, -1, 1, 79.422963))
pocket2 = body.newObject("PartDesign::Pocket", "Pocket001")
pocket2.Profile = sketch11
pocket2.Length = 60
pocket2.Reversed = True

sketch12 = body.newObject("Sketcher::SketchObject", "Sketch011")
sketch12.AttachmentSupport = (doc.getObject("YZ_Plane"), [""])
sketch12.MapMode = "FlatFace"
sketch12.AttachmentOffset = App.Placement(App.Vector(0, 0, 59.819261), App.Rotation())
add_polygon(sketch12, [(-44.422963, 0), (-79.422963, 0), (-79.422963, -3), (-44.422963, -3)])
sketch12.addConstraint(Sketcher.Constraint("Horizontal", 0))
sketch12.addConstraint(Sketcher.Constraint("Vertical", 1))
sketch12.addConstraint(Sketcher.Constraint("Horizontal", 2))
sketch12.addConstraint(Sketcher.Constraint("Vertical", 3))
sketch12.addConstraint(Sketcher.Constraint("PointOnObject", 0, 2, -1))
sketch12.addConstraint(Sketcher.Constraint("DistanceX", 0, 2, 0, 1, 35.0))
sketch12.addConstraint(Sketcher.Constraint("DistanceY", 1, 2, 1, 1, 3.0))
sketch12.addConstraint(Sketcher.Constraint("DistanceX", 0, 2, -1, 1, 79.422963))
pad10 = body.newObject("PartDesign::Pad", "Pad009")
pad10.Profile = sketch12
pad10.Length = 1
pad10.Reversed = True

sketch13 = body.newObject("Sketcher::SketchObject", "Sketch012")
sketch13.AttachmentSupport = (doc.getObject("YZ_Plane"), [""])
sketch13.MapMode = "FlatFace"
sketch13.AttachmentOffset = App.Placement(App.Vector(0, 0, 20.819261), App.Rotation())
add_polygon(sketch13, [(-44.422963, -3), (-79.422963, -3), (-79.422963, 0), (-44.422963, 0)])
sketch13.addConstraint(Sketcher.Constraint("Horizontal", 0))
sketch13.addConstraint(Sketcher.Constraint("Vertical", 1))
sketch13.addConstraint(Sketcher.Constraint("Horizontal", 2))
sketch13.addConstraint(Sketcher.Constraint("Vertical", 3))
sketch13.addConstraint(Sketcher.Constraint("PointOnObject", 1, 2, -1))
sketch13.addConstraint(Sketcher.Constraint("DistanceX", 0, 2, 0, 1, 35.0))
sketch13.addConstraint(Sketcher.Constraint("DistanceY", 1, 1, 1, 2, 3.0))
sketch13.addConstraint(Sketcher.Constraint("DistanceX", 0, 2, -1, 1, 79.422963))
pad11 = body.newObject("PartDesign::Pad", "Pad010")
pad11.Profile = sketch13
pad11.Length = 1

sketch14 = body.newObject("Sketcher::SketchObject", "Sketch013")
sketch14.AttachmentSupport = (doc.getObject("XY_Plane"), [""])
sketch14.MapMode = "FlatFace"
add_polygon(sketch14, [(-54.81366, -42.422963), (-54.81366, -81.422963), (-93.81366, -81.422963), (-93.81366, -42.422963)])
add_polygon(sketch14, [(-92.180739, -79.422963), (-57.180739, -79.422963), (-57.180739, -44.422963), (-92.180739, -44.422963)])
sketch14.addConstraint(Sketcher.Constraint("Vertical", 0))
sketch14.addConstraint(Sketcher.Constraint("Horizontal", 1))
sketch14.addConstraint(Sketcher.Constraint("Vertical", 2))
sketch14.addConstraint(Sketcher.Constraint("Horizontal", 3))
sketch14.addConstraint(Sketcher.Constraint("Horizontal", 4))
sketch14.addConstraint(Sketcher.Constraint("Vertical", 5))
sketch14.addConstraint(Sketcher.Constraint("Horizontal", 6))
sketch14.addConstraint(Sketcher.Constraint("Vertical", 7))
sketch14.addConstraint(Sketcher.Constraint("Equal", 3, 0))
sketch14.addConstraint(Sketcher.Constraint("Equal", 6, 5))
sketch14.addConstraint(Sketcher.Constraint("DistanceX", 1, 2, 1, 1, 39.0))
sketch14.addConstraint(Sketcher.Constraint("DistanceX", 4, 1, 4, 2, 35.0))
sketch14.addConstraint(Sketcher.Constraint("DistanceY", 0, 2, 4, 2, 2.0))
sketch14.addConstraint(Sketcher.Constraint("DistanceX", 0, 2, -1, 1, 54.81366))
sketch14.addConstraint(Sketcher.Constraint("DistanceX", 4, 2, -1, 1, 57.180739))
sketch14.addConstraint(Sketcher.Constraint("DistanceY", 0, 2, -1, 1, 81.422963))
pad12 = body.newObject("PartDesign::Pad", "Pad011")
pad12.Profile = sketch14
pad12.Length = 20
pad12.Reversed = True

sketch15 = body.newObject("Sketcher::SketchObject", "Sketch014")
sketch15.AttachmentSupport = (doc.getObject("YZ_Plane"), [""])
sketch15.MapMode = "FlatFace"
sketch15.AttachmentOffset = App.Placement(App.Vector(0, 0, -93.81366), App.Rotation())
add_polygon(sketch15, [(-44.422963, -15), (-76.422963, -15), (-76.422963, -3), (-44.422963, -3)])
sketch15.addConstraint(Sketcher.Constraint("Horizontal", 0))
sketch15.addConstraint(Sketcher.Constraint("Vertical", 1))
sketch15.addConstraint(Sketcher.Constraint("Horizontal", 2))
sketch15.addConstraint(Sketcher.Constraint("Vertical", 3))
sketch15.addConstraint(Sketcher.Constraint("DistanceX", 0, 2, 0, 1, 32.0))
sketch15.addConstraint(Sketcher.Constraint("DistanceY", 1, 1, 1, 2, 12.0))
sketch15.addConstraint(Sketcher.Constraint("DistanceY", 0, 2, -1, 1, 15.0))
sketch15.addConstraint(Sketcher.Constraint("DistanceX", 0, 2, -1, 1, 76.422963))
pocket3 = body.newObject("PartDesign::Pocket", "Pocket002")
pocket3.Profile = sketch15
pocket3.Length = 50
pocket3.Reversed = True

sketch16 = body.newObject("Sketcher::SketchObject", "Sketch015")
sketch16.AttachmentSupport = (doc.getObject("YZ_Plane"), [""])
sketch16.MapMode = "FlatFace"
sketch16.AttachmentOffset = App.Placement(App.Vector(0, 0, 72.819261), App.Rotation())
add_polygon(sketch16, [(-56.922963, 4), (-58.922963, 4), (-58.922963, 0), (-56.922963, 0)])
add_polygon(sketch16, [(-64.922963, 4), (-66.922963, 4), (-66.922963, 0), (-64.922963, 0)])
sketch16.addConstraint(Sketcher.Constraint("Horizontal", 0))
sketch16.addConstraint(Sketcher.Constraint("Vertical", 1))
sketch16.addConstraint(Sketcher.Constraint("Horizontal", 2))
sketch16.addConstraint(Sketcher.Constraint("Vertical", 3))
sketch16.addConstraint(Sketcher.Constraint("Horizontal", 4))
sketch16.addConstraint(Sketcher.Constraint("Vertical", 5))
sketch16.addConstraint(Sketcher.Constraint("Horizontal", 6))
sketch16.addConstraint(Sketcher.Constraint("Vertical", 7))
sketch16.addConstraint(Sketcher.Constraint("PointOnObject", 1, 2, -1))
sketch16.addConstraint(Sketcher.Constraint("PointOnObject", 5, 2, -1))
sketch16.addConstraint(Sketcher.Constraint("Horizontal", 3, 2, 4, 2))
sketch16.addConstraint(Sketcher.Constraint("Equal", 2, 4))
sketch16.addConstraint(Sketcher.Constraint("DistanceX", 0, 2, 0, 1, 2.0))
sketch16.addConstraint(Sketcher.Constraint("DistanceY", 1, 2, 1, 1, 4.0))
sketch16.addConstraint(Sketcher.Constraint("DistanceX", 4, 2, 0, 2, 8.0))
sketch16.addConstraint(Sketcher.Constraint("DistanceX", 0, 2, -1, 1, 58.922963))
pad13 = body.newObject("PartDesign::Pad", "Pad012")
pad13.Profile = sketch16
pad13.Length = 5

sketch17 = body.newObject("Sketcher::SketchObject", "Sketch016")
sketch17.AttachmentSupport = (doc.getObject("YZ_Plane"), [""])
sketch17.MapMode = "FlatFace"
sketch17.AttachmentOffset = App.Placement(App.Vector(0, 0, 77.819261), App.Rotation())
add_polygon(sketch17, [(-56.922963, 4), (-60.922963, 4), (-60.922963, 0), (-56.922963, 0)])
add_polygon(sketch17, [(-62.922963, 4), (-66.922963, 4), (-66.922963, 0), (-62.922963, 0)])
sketch17.addConstraint(Sketcher.Constraint("Horizontal", 0))
sketch17.addConstraint(Sketcher.Constraint("Vertical", 1))
sketch17.addConstraint(Sketcher.Constraint("Horizontal", 2))
sketch17.addConstraint(Sketcher.Constraint("Vertical", 3))
sketch17.addConstraint(Sketcher.Constraint("Horizontal", 4))
sketch17.addConstraint(Sketcher.Constraint("Vertical", 5))
sketch17.addConstraint(Sketcher.Constraint("Horizontal", 6))
sketch17.addConstraint(Sketcher.Constraint("Vertical", 7))
sketch17.addConstraint(Sketcher.Constraint("PointOnObject", 1, 2, -1))
sketch17.addConstraint(Sketcher.Constraint("PointOnObject", 5, 2, -1))
sketch17.addConstraint(Sketcher.Constraint("Horizontal", 3, 2, 4, 2))
sketch17.addConstraint(Sketcher.Constraint("Equal", 2, 4))
sketch17.addConstraint(Sketcher.Constraint("Equal", 6, 1))
sketch17.addConstraint(Sketcher.Constraint("DistanceX", 0, 2, 0, 1, 4.0))
sketch17.addConstraint(Sketcher.Constraint("DistanceX", 4, 2, 0, 2, 6.0))
sketch17.addConstraint(Sketcher.Constraint("DistanceX", 0, 2, -1, 1, 60.922963))
pad14 = body.newObject("PartDesign::Pad", "Pad013")
pad14.Profile = sketch17
pad14.Length = 2

sketch18 = body.newObject("Sketcher::SketchObject", "Sketch017")
sketch18.AttachmentSupport = (doc.getObject("YZ_Plane"), [""])
sketch18.MapMode = "FlatFace"
sketch18.AttachmentOffset = App.Placement(App.Vector(0, 0, -107.180739), App.Rotation())
add_polygon(sketch18, [(-56.402029, 0), (-58.402029, 0), (-58.402029, 4), (-56.402029, 4)])
add_polygon(sketch18, [(-64.922963, 0), (-66.922963, 0), (-66.922963, 4), (-64.922963, 4)])
sketch18.addConstraint(Sketcher.Constraint("Horizontal", 0))
sketch18.addConstraint(Sketcher.Constraint("Vertical", 1))
sketch18.addConstraint(Sketcher.Constraint("Horizontal", 2))
sketch18.addConstraint(Sketcher.Constraint("Vertical", 3))
sketch18.addConstraint(Sketcher.Constraint("Horizontal", 4))
sketch18.addConstraint(Sketcher.Constraint("Vertical", 5))
sketch18.addConstraint(Sketcher.Constraint("Horizontal", 6))
sketch18.addConstraint(Sketcher.Constraint("Vertical", 7))
sketch18.addConstraint(Sketcher.Constraint("PointOnObject", 0, 2, -1))
sketch18.addConstraint(Sketcher.Constraint("PointOnObject", 4, 2, -1))
sketch18.addConstraint(Sketcher.Constraint("Horizontal", 2, 2, 5, 2))
sketch18.addConstraint(Sketcher.Constraint("Equal", 2, 4))
sketch18.addConstraint(Sketcher.Constraint("DistanceX", 0, 2, 0, 1, 2.0))
sketch18.addConstraint(Sketcher.Constraint("DistanceY", 1, 1, 1, 2, 4.0))
sketch18.addConstraint(Sketcher.Constraint("DistanceX", 0, 2, -1, 1, 58.402029))
sketch18.addConstraint(Sketcher.Constraint("DistanceX", 4, 2, -1, 1, 66.922963))
pad15 = body.newObject("PartDesign::Pad", "Pad014")
pad15.Profile = sketch18
pad15.Length = 5
pad15.Reversed = True

sketch19 = body.newObject("Sketcher::SketchObject", "Sketch018")
sketch19.AttachmentSupport = (doc.getObject("YZ_Plane"), [""])
sketch19.MapMode = "FlatFace"
sketch19.AttachmentOffset = App.Placement(App.Vector(0, 0, -112.180739), App.Rotation())
add_polygon(sketch19, [(-56.402029, 0), (-60.402029, 0), (-60.402029, 4), (-56.402029, 4)])
add_polygon(sketch19, [(-62.922963, 0), (-66.922963, 0), (-66.922963, 4), (-62.922963, 4)])
sketch19.addConstraint(Sketcher.Constraint("Horizontal", 0))
sketch19.addConstraint(Sketcher.Constraint("Vertical", 1))
sketch19.addConstraint(Sketcher.Constraint("Horizontal", 2))
sketch19.addConstraint(Sketcher.Constraint("Vertical", 3))
sketch19.addConstraint(Sketcher.Constraint("Horizontal", 4))
sketch19.addConstraint(Sketcher.Constraint("Vertical", 5))
sketch19.addConstraint(Sketcher.Constraint("Horizontal", 6))
sketch19.addConstraint(Sketcher.Constraint("Vertical", 7))
sketch19.addConstraint(Sketcher.Constraint("PointOnObject", 0, 2, -1))
sketch19.addConstraint(Sketcher.Constraint("PointOnObject", 4, 2, -1))
sketch19.addConstraint(Sketcher.Constraint("Horizontal", 2, 2, 5, 2))
sketch19.addConstraint(Sketcher.Constraint("Equal", 2, 4))
sketch19.addConstraint(Sketcher.Constraint("Equal", 6, 1))
sketch19.addConstraint(Sketcher.Constraint("DistanceX", 0, 2, 0, 1, 4.0))
sketch19.addConstraint(Sketcher.Constraint("DistanceX", 0, 2, -1, 1, 60.402029))
sketch19.addConstraint(Sketcher.Constraint("DistanceX", 4, 2, -1, 1, 66.922963))
pad16 = body.newObject("PartDesign::Pad", "Pad015")
pad16.Profile = sketch19
pad16.Length = 2
pad16.Reversed = True

sketch20 = body.newObject("Sketcher::SketchObject", "Sketch019")
sketch20.AttachmentSupport = (doc.getObject("XY_Plane"), [""])
sketch20.MapMode = "FlatFace"
sketch20.AttachmentOffset = App.Placement(App.Vector(0, 0, 4), App.Rotation())
sketch20.addGeometry(Part.LineSegment(App.Vector(18.307023, 57.37324, 0), App.Vector(-53.478479, 57.37324, 0)), False)
sketch20.addGeometry(Part.ArcOfCircle(Part.Circle(App.Vector(-53.478479, 47.740681, 0), App.Vector(0, 0, 1), 9.632559), math.radians(90), math.radians(270)), False)
sketch20.addGeometry(Part.LineSegment(App.Vector(-53.478479, 38.108121, 0), App.Vector(18.307023, 38.108121, 0)), False)
sketch20.addGeometry(Part.ArcOfCircle(Part.Circle(App.Vector(18.307023, 47.740681, 0), App.Vector(0, 0, 1), 9.632559), math.radians(-90), math.radians(90)), False)
sketch20.addGeometry(Part.LineSegment(App.Vector(16.932083, -164.815051, 0), App.Vector(-55.128461, -164.815051, 0)), False)
sketch20.addGeometry(Part.ArcOfCircle(Part.Circle(App.Vector(-55.128461, -172.746243, 0), App.Vector(0, 0, 1), 7.931192), math.radians(90), math.radians(270)), False)
sketch20.addGeometry(Part.LineSegment(App.Vector(-55.128461, -180.677435, 0), App.Vector(16.932083, -180.677435, 0)), False)
sketch20.addGeometry(Part.ArcOfCircle(Part.Circle(App.Vector(16.932083, -172.746243, 0), App.Vector(0, 0, 1), 7.931192), math.radians(-90), math.radians(90)), False)
sketch20.addConstraint(Sketcher.Constraint("Tangent", 0, 2, 1, 1))
sketch20.addConstraint(Sketcher.Constraint("Tangent", 1, 2, 2, 1))
sketch20.addConstraint(Sketcher.Constraint("Tangent", 2, 2, 3, 1))
sketch20.addConstraint(Sketcher.Constraint("Tangent", 3, 2, 0, 1))
sketch20.addConstraint(Sketcher.Constraint("Tangent", 4, 2, 5, 1))
sketch20.addConstraint(Sketcher.Constraint("Tangent", 5, 2, 6, 1))
sketch20.addConstraint(Sketcher.Constraint("Tangent", 6, 2, 7, 1))
sketch20.addConstraint(Sketcher.Constraint("Tangent", 7, 2, 4, 1))
sketch20.addConstraint(Sketcher.Constraint("Horizontal", 0))
sketch20.addConstraint(Sketcher.Constraint("Horizontal", 2))
sketch20.addConstraint(Sketcher.Constraint("Horizontal", 4))
sketch20.addConstraint(Sketcher.Constraint("Horizontal", 6))
sketch20.addConstraint(Sketcher.Constraint("Radius", 1, 9.632559))
sketch20.addConstraint(Sketcher.Constraint("Radius", 5, 7.931192))
sketch20.addConstraint(Sketcher.Constraint("DistanceX", 0, 2, 0, 1, 71.785501))
sketch20.addConstraint(Sketcher.Constraint("DistanceX", 4, 2, 4, 1, 72.060544))
sketch20.addConstraint(Sketcher.Constraint("DistanceX", 1, 3, -1, 1, 53.478479))
sketch20.addConstraint(Sketcher.Constraint("DistanceY", -1, 1, 1, 3, 47.740681))
sketch20.addConstraint(Sketcher.Constraint("DistanceX", 5, 3, -1, 1, 55.128461))
sketch20.addConstraint(Sketcher.Constraint("DistanceY", 4, 2, -1, 1, 164.815051))
pocket4 = body.newObject("PartDesign::Pocket", "Pocket003")
pocket4.Profile = sketch20
pocket4.Length = 10
body2 = doc.addObject("PartDesign::Body", "Body001")

sketch21 = body2.newObject("Sketcher::SketchObject", "Sketch020")
sketch21.AttachmentSupport = (doc.getObject("XY_Plane001"), [""])
sketch21.MapMode = "FlatFace"
sketch21.AttachmentOffset = App.Placement(App.Vector(0, 0, 30), App.Rotation())
add_polygon(sketch21, [(27.819261, -48.922963), (27.819261, -30.922963), (-62.180739, -30.922963), (-62.180739, -92.922963), (27.819261, -92.922963), (27.819261, -74.922963), (-49.180739, -74.922963), (-49.180739, -48.922963)])
sketch21.addConstraint(Sketcher.Constraint("Vertical", 0))
sketch21.addConstraint(Sketcher.Constraint("Horizontal", 1))
sketch21.addConstraint(Sketcher.Constraint("Vertical", 2))
sketch21.addConstraint(Sketcher.Constraint("Horizontal", 3))
sketch21.addConstraint(Sketcher.Constraint("Vertical", 4))
sketch21.addConstraint(Sketcher.Constraint("Horizontal", 5))
sketch21.addConstraint(Sketcher.Constraint("Vertical", 6))
sketch21.addConstraint(Sketcher.Constraint("Horizontal", 7))
sketch21.addConstraint(Sketcher.Constraint("Vertical", 0, 2, 3, 2))
sketch21.addConstraint(Sketcher.Constraint("Equal", 0, 4))
sketch21.addConstraint(Sketcher.Constraint("DistanceX", 1, 2, 1, 1, 90.0))
sketch21.addConstraint(Sketcher.Constraint("DistanceX", 5, 2, 5, 1, 77.0))
sketch21.addConstraint(Sketcher.Constraint("DistanceY", 0, 1, 0, 2, 18.0))
sketch21.addConstraint(Sketcher.Constraint("DistanceY", 2, 2, 2, 1, 62.0))
sketch21.addConstraint(Sketcher.Constraint("DistanceX", -1, 1, 0, 2, 27.819261))
sketch21.addConstraint(Sketcher.Constraint("DistanceY", 0, 2, -1, 1, 30.922963))
pad17 = body2.newObject("PartDesign::Pad", "Pad016")
pad17.Profile = sketch21
pad17.Length = 3.5
body3 = doc.addObject("PartDesign::Body", "Body002")

sketch22 = body3.newObject("Sketcher::SketchObject", "Sketch021")
sketch22.AttachmentSupport = (doc.getObject("XY_Plane002"), [""])
sketch22.MapMode = "FlatFace"
sketch22.AttachmentOffset = App.Placement(App.Vector(0, 0, 33.5), App.Rotation())
add_polygon(sketch22, [(27.819261, -30.922963), (27.819261, -28.922963), (-64.180739, -28.922963), (-64.180739, -94.922963), (27.819261, -94.922963), (27.819261, -92.922963), (-62.180739, -92.922963), (-62.180739, -30.922963)])
sketch22.addConstraint(Sketcher.Constraint("Vertical", 0))
sketch22.addConstraint(Sketcher.Constraint("Horizontal", 1))
sketch22.addConstraint(Sketcher.Constraint("Vertical", 2))
sketch22.addConstraint(Sketcher.Constraint("Horizontal", 3))
sketch22.addConstraint(Sketcher.Constraint("Vertical", 4))
sketch22.addConstraint(Sketcher.Constraint("Horizontal", 5))
sketch22.addConstraint(Sketcher.Constraint("Vertical", 6))
sketch22.addConstraint(Sketcher.Constraint("Horizontal", 7))
sketch22.addConstraint(Sketcher.Constraint("Vertical", 0, 2, 3, 2))
sketch22.addConstraint(Sketcher.Constraint("Equal", 0, 4))
sketch22.addConstraint(Sketcher.Constraint("DistanceX", 1, 2, 1, 1, 92.0))
sketch22.addConstraint(Sketcher.Constraint("DistanceX", 5, 2, 5, 1, 90.0))
sketch22.addConstraint(Sketcher.Constraint("DistanceY", 0, 1, 0, 2, 2.0))
sketch22.addConstraint(Sketcher.Constraint("DistanceY", 2, 2, 2, 1, 66.0))
sketch22.addConstraint(Sketcher.Constraint("DistanceX", -1, 1, 0, 2, 27.819261))
sketch22.addConstraint(Sketcher.Constraint("DistanceY", 0, 2, -1, 1, 28.922963))
pad18 = body3.newObject("PartDesign::Pad", "Pad017")
pad18.Profile = sketch22
pad18.Length = 3.5
pad18.Reversed = True

doc.recompute()
